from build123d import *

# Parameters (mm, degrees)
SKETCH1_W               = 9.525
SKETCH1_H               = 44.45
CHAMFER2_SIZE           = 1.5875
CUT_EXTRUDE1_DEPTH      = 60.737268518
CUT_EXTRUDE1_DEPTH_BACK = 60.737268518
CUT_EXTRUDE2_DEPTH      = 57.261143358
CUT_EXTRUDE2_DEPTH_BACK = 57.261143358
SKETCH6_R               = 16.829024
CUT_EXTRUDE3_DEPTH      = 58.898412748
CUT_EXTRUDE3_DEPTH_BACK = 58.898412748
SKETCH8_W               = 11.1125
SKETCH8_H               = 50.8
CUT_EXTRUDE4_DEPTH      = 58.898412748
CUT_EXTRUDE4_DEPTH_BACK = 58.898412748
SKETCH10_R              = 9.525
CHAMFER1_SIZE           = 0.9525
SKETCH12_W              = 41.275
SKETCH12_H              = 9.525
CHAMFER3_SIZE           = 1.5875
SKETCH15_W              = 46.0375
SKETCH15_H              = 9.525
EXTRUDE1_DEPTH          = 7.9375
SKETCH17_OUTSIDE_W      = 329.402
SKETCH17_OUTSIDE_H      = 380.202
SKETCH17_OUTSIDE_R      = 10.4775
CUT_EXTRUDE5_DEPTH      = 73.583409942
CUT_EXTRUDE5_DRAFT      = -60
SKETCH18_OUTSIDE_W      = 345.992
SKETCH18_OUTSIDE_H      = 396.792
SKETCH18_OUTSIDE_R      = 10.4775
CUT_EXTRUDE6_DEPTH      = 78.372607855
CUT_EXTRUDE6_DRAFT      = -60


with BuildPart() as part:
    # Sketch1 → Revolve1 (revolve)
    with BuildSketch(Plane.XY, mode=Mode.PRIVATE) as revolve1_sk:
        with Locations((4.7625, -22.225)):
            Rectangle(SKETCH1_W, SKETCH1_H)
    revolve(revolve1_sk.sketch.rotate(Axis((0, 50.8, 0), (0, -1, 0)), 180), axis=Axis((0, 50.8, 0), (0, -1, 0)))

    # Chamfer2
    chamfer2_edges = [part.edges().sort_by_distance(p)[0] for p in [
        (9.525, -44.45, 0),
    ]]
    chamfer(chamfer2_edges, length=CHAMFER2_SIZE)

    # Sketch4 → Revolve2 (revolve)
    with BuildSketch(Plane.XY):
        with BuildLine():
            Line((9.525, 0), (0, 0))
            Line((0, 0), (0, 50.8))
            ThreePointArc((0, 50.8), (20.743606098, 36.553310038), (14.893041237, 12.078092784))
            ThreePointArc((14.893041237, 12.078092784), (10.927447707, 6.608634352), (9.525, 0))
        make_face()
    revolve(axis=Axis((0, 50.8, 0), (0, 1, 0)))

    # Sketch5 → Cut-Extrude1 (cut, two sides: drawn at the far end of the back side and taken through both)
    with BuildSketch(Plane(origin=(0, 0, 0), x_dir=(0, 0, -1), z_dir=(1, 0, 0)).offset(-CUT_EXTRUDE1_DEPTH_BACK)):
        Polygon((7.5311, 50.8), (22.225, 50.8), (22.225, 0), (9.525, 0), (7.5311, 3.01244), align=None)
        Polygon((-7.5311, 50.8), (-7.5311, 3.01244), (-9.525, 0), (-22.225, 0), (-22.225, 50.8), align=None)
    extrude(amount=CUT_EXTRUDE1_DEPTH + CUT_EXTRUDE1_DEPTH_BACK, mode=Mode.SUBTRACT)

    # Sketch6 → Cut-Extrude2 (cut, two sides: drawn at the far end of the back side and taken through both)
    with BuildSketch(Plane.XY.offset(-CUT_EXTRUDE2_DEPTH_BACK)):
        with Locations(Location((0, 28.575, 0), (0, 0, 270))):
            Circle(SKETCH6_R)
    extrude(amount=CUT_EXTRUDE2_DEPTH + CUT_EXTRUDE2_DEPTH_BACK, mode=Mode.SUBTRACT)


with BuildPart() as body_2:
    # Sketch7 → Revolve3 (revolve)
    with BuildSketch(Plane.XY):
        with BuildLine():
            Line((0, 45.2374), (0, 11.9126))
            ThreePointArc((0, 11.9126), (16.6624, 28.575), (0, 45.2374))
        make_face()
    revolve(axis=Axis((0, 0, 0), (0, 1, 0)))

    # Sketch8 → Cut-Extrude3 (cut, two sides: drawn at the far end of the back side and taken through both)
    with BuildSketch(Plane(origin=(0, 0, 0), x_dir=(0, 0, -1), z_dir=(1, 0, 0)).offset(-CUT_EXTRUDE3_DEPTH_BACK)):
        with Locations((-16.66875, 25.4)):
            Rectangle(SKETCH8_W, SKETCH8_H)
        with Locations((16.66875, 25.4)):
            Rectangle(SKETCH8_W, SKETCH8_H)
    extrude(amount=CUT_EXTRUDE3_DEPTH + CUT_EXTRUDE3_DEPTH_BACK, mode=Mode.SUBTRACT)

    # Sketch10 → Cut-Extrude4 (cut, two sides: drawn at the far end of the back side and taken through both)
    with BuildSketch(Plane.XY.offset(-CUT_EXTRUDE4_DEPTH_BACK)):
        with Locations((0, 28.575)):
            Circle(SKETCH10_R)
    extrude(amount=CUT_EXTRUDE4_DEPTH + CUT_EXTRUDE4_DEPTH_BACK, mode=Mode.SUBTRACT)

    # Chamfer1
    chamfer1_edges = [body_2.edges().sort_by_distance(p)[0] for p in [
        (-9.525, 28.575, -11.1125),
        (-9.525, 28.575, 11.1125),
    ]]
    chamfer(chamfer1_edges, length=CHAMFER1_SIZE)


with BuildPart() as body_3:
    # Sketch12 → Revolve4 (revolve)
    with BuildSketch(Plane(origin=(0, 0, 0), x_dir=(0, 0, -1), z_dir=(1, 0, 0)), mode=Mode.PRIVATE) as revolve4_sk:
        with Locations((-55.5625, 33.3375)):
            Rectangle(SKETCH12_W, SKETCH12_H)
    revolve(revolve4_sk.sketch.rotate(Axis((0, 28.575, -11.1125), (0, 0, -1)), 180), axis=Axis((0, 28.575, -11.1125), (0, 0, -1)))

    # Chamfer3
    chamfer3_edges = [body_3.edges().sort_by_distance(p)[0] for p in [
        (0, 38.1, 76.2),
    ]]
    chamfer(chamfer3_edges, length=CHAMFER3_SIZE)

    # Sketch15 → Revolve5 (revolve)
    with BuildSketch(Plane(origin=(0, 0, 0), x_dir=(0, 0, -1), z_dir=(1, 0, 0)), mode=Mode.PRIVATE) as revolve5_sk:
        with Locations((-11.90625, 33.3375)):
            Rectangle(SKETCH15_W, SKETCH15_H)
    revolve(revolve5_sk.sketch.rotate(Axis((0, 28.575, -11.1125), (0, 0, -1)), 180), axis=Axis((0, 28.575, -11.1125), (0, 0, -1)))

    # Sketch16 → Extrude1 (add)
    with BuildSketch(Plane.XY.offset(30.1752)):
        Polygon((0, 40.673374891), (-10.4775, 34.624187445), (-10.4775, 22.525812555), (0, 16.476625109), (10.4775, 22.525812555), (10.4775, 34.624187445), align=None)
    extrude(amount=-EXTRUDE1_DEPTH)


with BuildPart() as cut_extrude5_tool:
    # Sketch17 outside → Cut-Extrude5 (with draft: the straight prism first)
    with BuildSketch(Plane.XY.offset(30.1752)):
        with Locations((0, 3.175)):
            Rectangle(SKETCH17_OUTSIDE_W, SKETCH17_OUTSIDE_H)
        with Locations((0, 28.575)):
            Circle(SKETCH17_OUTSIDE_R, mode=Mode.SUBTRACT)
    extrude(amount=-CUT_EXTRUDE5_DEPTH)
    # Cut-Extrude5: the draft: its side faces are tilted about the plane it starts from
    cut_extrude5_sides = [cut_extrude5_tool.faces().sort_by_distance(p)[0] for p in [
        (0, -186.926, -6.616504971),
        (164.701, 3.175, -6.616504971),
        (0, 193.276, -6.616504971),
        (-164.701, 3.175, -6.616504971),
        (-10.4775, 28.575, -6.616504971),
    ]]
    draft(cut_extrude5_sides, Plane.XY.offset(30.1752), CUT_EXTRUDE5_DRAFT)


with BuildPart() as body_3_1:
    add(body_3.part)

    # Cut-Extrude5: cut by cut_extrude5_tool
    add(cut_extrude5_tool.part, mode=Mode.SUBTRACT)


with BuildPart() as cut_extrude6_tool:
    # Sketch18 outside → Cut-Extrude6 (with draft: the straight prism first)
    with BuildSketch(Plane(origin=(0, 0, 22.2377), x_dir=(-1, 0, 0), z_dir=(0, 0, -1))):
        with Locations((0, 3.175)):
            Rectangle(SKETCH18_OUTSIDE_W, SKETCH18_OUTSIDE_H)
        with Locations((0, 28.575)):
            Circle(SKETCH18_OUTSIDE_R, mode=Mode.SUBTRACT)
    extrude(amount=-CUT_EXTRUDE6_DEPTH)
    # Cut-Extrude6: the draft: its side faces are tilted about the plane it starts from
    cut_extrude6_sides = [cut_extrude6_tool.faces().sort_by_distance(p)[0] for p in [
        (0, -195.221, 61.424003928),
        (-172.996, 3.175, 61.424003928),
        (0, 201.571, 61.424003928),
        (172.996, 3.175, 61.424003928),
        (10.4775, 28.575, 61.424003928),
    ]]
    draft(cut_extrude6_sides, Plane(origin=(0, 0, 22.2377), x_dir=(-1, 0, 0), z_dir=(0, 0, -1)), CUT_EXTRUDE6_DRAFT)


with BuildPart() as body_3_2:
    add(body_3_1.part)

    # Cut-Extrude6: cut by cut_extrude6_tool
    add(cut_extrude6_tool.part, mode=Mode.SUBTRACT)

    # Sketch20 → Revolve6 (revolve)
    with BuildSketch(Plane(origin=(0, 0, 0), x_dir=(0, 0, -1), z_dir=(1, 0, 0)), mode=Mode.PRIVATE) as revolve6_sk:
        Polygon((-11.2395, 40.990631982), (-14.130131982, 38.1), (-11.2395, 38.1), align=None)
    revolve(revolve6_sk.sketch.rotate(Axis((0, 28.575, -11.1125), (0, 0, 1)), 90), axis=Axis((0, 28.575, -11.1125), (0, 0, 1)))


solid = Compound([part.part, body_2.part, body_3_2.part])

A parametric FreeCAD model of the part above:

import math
import FreeCAD as App
import Part
import Sketcher

V = App.Vector
Q = App.Units.Quantity


def edges_at(feature, points):
    """Names of the edges that pass closest to the given points."""
    edges = feature.Shape.Edges
    near = lambda p: min(range(len(edges)), key=lambda i: edges[i].distToShape(Part.Vertex(*p))[0])
    return sorted({f"Edge{near(p) + 1}" for p in points})


def faces_at(feature, points):
    """Names of the faces that lie closest to the given points."""
    faces = feature.Shape.Faces
    near = lambda p: min(range(len(faces)), key=lambda i: faces[i].distToShape(Part.Vertex(*p))[0])
    return sorted({f"Face{near(p) + 1}" for p in points})


def add_polygon(sketch, points):
    """Adds a closed chain of lines whose ends are joined by coincident constraints."""
    first, n = sketch.GeometryCount, len(points)
    for a, b in zip(points, points[1:] + points[:1]):
        sketch.addGeometry(Part.LineSegment(App.Vector(*a, 0), App.Vector(*b, 0)), False)
    for i in range(n):
        sketch.addConstraint(Sketcher.Constraint("Coincident", first + i, 2, first + (i + 1) % n, 1))

doc = App.newDocument("Part")
body = doc.addObject("PartDesign::Body", "Body")

# Sketch on XY plane
sketch1 = doc.addObject("Sketcher::SketchObject", "Sketch")
body.addObject(sketch1)
sketch1.AttachmentSupport = (doc.XY_Plane, [""])
sketch1.MapMode = "FlatFace"
add_polygon(sketch1, [(0, 0), (0, -44), (10, -44), (10, 0)])  # lines 0-3
sketch1.addConstraint([
    Sketcher.Constraint("Vertical", 0),
    Sketcher.Constraint("Horizontal", 1),
    Sketcher.Constraint("Vertical", 2),
    Sketcher.Constraint("Horizontal", 3),
    Sketcher.Constraint("Coincident", 3, 2, -1, 1),
    Sketcher.Constraint("DistanceY", 0, 2, 0, 1, Q("1.75 in")),
    Sketcher.Constraint("DistanceX", 1, 1, 1, 2, Q("0.375 in")),
])
revolution = doc.addObject("PartDesign::Revolution", "Revolution")
body.addObject(revolution)
revolution.Profile = sketch1
revolution.ReferenceAxis = (sketch1, ["V_Axis"])
revolution.Angle = 360
doc.recompute()

chamfer = doc.addObject("PartDesign::Chamfer", "Chamfer")
body.addObject(chamfer)
chamfer.Base = (revolution, edges_at(revolution, [(9.525, -44.45, 0)]))
chamfer.Size = Q("0.0625 in")

# Sketch on XY plane
sketch2 = doc.addObject("Sketcher::SketchObject", "Sketch001")
body.addObject(sketch2)
sketch2.AttachmentSupport = (doc.XY_Plane, [""])
sketch2.MapMode = "FlatFace"
sketch2.addGeometry([
    Part.LineSegment(V(0, 0, 0), V(10, 0, 0)),
    Part.ArcOfCircle(Part.Circle(V(26, 0, 0), V(0, 0, 1), 16), math.radians(132), math.radians(180)),
    Part.ArcOfCircle(Part.Circle(V(0, 29, 0), V(0, 0, 1), 22), math.radians(-48), math.radians(90)),
    Part.LineSegment(V(0, 51, 0), V(0, 0, 0)),
], False)
sketch2.addConstraint([
    Sketcher.Constraint("Coincident", 0, 2, 1, 2),
    Sketcher.Constraint("Tangent", 1, 1, 2, 1),
    Sketcher.Constraint("Coincident", 2, 2, 3, 1),
    Sketcher.Constraint("Coincident", 3, 2, 0, 1),
    Sketcher.Constraint("Horizontal", 0),
    Sketcher.Constraint("Vertical", 3),
    Sketcher.Constraint("Coincident", 3, 2, -1, 1),
    Sketcher.Constraint("PointOnObject", 1, 3, -1),
    Sketcher.Constraint("PointOnObject", 2, 3, -2),
    Sketcher.Constraint("DistanceY", 3, 2, 3, 1, Q("2 in")),
    Sketcher.Constraint("Radius", 1, Q("0.640625 in")),
    Sketcher.Constraint("Radius", 2, Q("0.875 in")),
])
revolution2 = doc.addObject("PartDesign::Revolution", "Revolution001")
body.addObject(revolution2)
revolution2.Profile = sketch2
revolution2.ReferenceAxis = (sketch2, ["V_Axis"])
revolution2.Angle = 360

# Sketch on YZ plane
sketch3 = doc.addObject("Sketcher::SketchObject", "Sketch002")
body.addObject(sketch3)
sketch3.AttachmentSupport = (doc.YZ_Plane, [""])
sketch3.MapMode = "FlatFace"
add_polygon(sketch3, [(50.8, -22.2), (50.8, -7.5), (3, -7.5), (0, -9.5), (0, -22.2)])  # lines 0-4
add_polygon(sketch3, [(3, 7.5), (50.8, 7.5), (50.8, 22.2), (0, 22.2), (0, 9.5)])  # lines 5-9
sketch3.addConstraint([
    Sketcher.Constraint("Vertical", 0),
    Sketcher.Constraint("Horizontal", 1),
    Sketcher.Constraint("Vertical", 3),
    Sketcher.Constraint("Horizontal", 4),
    Sketcher.Constraint("Horizontal", 5),
    Sketcher.Constraint("Vertical", 6),
    Sketcher.Constraint("Horizontal", 7),
    Sketcher.Constraint("Vertical", 8),
    Sketcher.Constraint("Symmetric", 3, 2, 7, 2, -1, 1),
    Sketcher.Constraint("Symmetric", 0, 2, 5, 2, -1),
    Sketcher.Constraint("Symmetric", 2, 2, 8, 2, -1),
    Sketcher.Constraint("Vertical", 1, 2, 9, 2),
    Sketcher.Constraint("DistanceX", 4, 1, 4, 2, Q("2 in")),
    Sketcher.Constraint("DistanceY", 3, 2, 3, 1, Q("0.5 in")),
    Sketcher.Constraint("DistanceY", 4, 2, 6, 2, Q("1.75 in")),
    Sketcher.Constraint("DistanceX", 1, 2, 1, 1, Q("1.8814 in")),
    Sketcher.Constraint("DistanceY", 0, 1, 0, 2, Q("0.5785 in")),
])
pocket1 = doc.addObject("PartDesign::Pocket", "Pocket")
body.addObject(pocket1)
pocket1.Profile = sketch3
pocket1.Type = "ThroughAll"
pocket1.Midplane = True

# Sketch on XY plane
sketch4 = doc.addObject("Sketcher::SketchObject", "Sketch003")
body.addObject(sketch4)
sketch4.AttachmentSupport = (doc.XY_Plane, [""])
sketch4.MapMode = "FlatFace"
sketch4.addGeometry(Part.Circle(V(0, 29, 0), V(0, 0, 1), 17), False)
sketch4.addConstraint([
    Sketcher.Constraint("PointOnObject", 0, 3, -2),
    Sketcher.Constraint("DistanceY", -1, 1, 0, 3, Q("1.125 in")),
    Sketcher.Constraint("Diameter", 0, Q("33.658048 mm")),
])
pocket2 = doc.addObject("PartDesign::Pocket", "Pocket001")
body.addObject(pocket2)
pocket2.Profile = sketch4
pocket2.Type = "ThroughAll"
pocket2.Midplane = True
body2 = doc.addObject("PartDesign::Body", "Body001")

# Sketch on XY plane
sketch5 = doc.addObject("Sketcher::SketchObject", "Sketch004")
body2.addObject(sketch5)
sketch5.AttachmentSupport = (doc.getObject("XY_Plane001"), [""])
sketch5.MapMode = "FlatFace"
sketch5.addGeometry([
    Part.LineSegment(V(0, 45, 0), V(0, 12, 0)),
    Part.ArcOfCircle(Part.Circle(V(0, 29, 0), V(0, 0, 1), 17), math.radians(-90), math.radians(90)),
], False)
sketch5.addConstraint([
    Sketcher.Constraint("Coincident", 0, 1, 1, 2),
    Sketcher.Constraint("Coincident", 1, 1, 0, 2),
    Sketcher.Constraint("Vertical", 0),
    Sketcher.Constraint("PointOnObject", 1, 3, -2),
    Sketcher.Constraint("PointOnObject", 0, 1, -2),
    Sketcher.Constraint("Radius", 1, Q("0.656 in")),
    Sketcher.Constraint("DistanceY", -1, 1, 1, 3, Q("1.125 in")),
])
revolution3 = doc.addObject("PartDesign::Revolution", "Revolution002")
body2.addObject(revolution3)
revolution3.Profile = sketch5
revolution3.ReferenceAxis = (sketch5, ["V_Axis"])
revolution3.Angle = 360

# Sketch on YZ plane
sketch6 = doc.addObject("Sketcher::SketchObject", "Sketch005")
body2.addObject(sketch6)
sketch6.AttachmentSupport = (doc.getObject("YZ_Plane001"), [""])
sketch6.MapMode = "FlatFace"
add_polygon(sketch6, [(51, 22), (0, 22), (0, 11), (51, 11)])  # lines 0-3
add_polygon(sketch6, [(51, -11), (0, -11), (0, -22), (51, -22)])  # lines 4-7
sketch6.addConstraint([
    Sketcher.Constraint("Horizontal", 0),
    Sketcher.Constraint("Vertical", 1),
    Sketcher.Constraint("Horizontal", 2),
    Sketcher.Constraint("Vertical", 3),
    Sketcher.Constraint("Horizontal", 4),
    Sketcher.Constraint("Vertical", 5),
    Sketcher.Constraint("Horizontal", 6),
    Sketcher.Constraint("Vertical", 7),
    Sketcher.Constraint("Symmetric", 1, 2, 4, 2, -1, 1),
    Sketcher.Constraint("Symmetric", 0, 2, 5, 2, -1),
    Sketcher.Constraint("Vertical", 3, 2, 6, 2),
    Sketcher.Constraint("DistanceX", 0, 2, 0, 1, Q("2 in")),
    Sketcher.Constraint("DistanceY", 1, 2, 1, 1, Q("0.4375 in")),
    Sketcher.Constraint("DistanceY", 5, 2, 0, 2, Q("1.75 in")),
])
pocket3 = doc.addObject("PartDesign::Pocket", "Pocket002")
body2.addObject(pocket3)
pocket3.Profile = sketch6
pocket3.Type = "ThroughAll"
pocket3.Midplane = True

# Sketch on XY plane
sketch7 = doc.addObject("Sketcher::SketchObject", "Sketch006")
body2.addObject(sketch7)
sketch7.AttachmentSupport = (doc.getObject("XY_Plane001"), [""])
sketch7.MapMode = "FlatFace"
sketch7.addGeometry(Part.Circle(V(0, 29, 0), V(0, 0, 1), 10), False)
sketch7.addConstraint([
    Sketcher.Constraint("PointOnObject", 0, 3, -2),
    Sketcher.Constraint("Diameter", 0, Q("0.75 in")),
    Sketcher.Constraint("DistanceY", -1, 1, 0, 3, Q("1.125 in")),
])
pocket4 = doc.addObject("PartDesign::Pocket", "Pocket003")
body2.addObject(pocket4)
pocket4.Profile = sketch7
pocket4.Type = "ThroughAll"
pocket4.Midplane = True
doc.recompute()

chamfer2 = doc.addObject("PartDesign::Chamfer", "Chamfer001")
body2.addObject(chamfer2)
chamfer2.Base = (pocket4, edges_at(pocket4, [(-9.525, 28.575, -11.113), (-9.525, 28.575, 11.113)]))
chamfer2.Size = Q("0.0375 in")
body3 = doc.addObject("PartDesign::Body", "Body002")

# Sketch on YZ plane
sketch8 = doc.addObject("Sketcher::SketchObject", "Sketch007")
body3.addObject(sketch8)
sketch8.AttachmentSupport = (doc.getObject("YZ_Plane002"), [""])
sketch8.MapMode = "FlatFace"
add_polygon(sketch8, [(38, 76), (29, 76), (29, 35), (38, 35)])  # lines 0-3
sketch8.addGeometry(Part.LineSegment(V(29, 76, 0), V(29, 35, 0)), True)  # axis
sketch8.addConstraint([
    Sketcher.Constraint("Horizontal", 0),
    Sketcher.Constraint("Vertical", 1),
    Sketcher.Constraint("Horizontal", 2),
    Sketcher.Constraint("Vertical", 3),
    Sketcher.Constraint("Vertical", 4),
    Sketcher.Constraint("Coincident", 4, 1, 0, 2),
    Sketcher.Constraint("Horizontal", 2, 2, 4, 2),
    Sketcher.Constraint("DistanceY", -1, 1, 0, 2, Q("3 in")),
    Sketcher.Constraint("DistanceX", -1, 1, 2, 2, Q("1.5 in")),
    Sketcher.Constraint("DistanceX", 0, 2, 0, 1, Q("0.375 in")),
    Sketcher.Constraint("DistanceY", 1, 2, 1, 1, Q("1.625 in")),
])
revolution4 = doc.addObject("PartDesign::Revolution", "Revolution003")
body3.addObject(revolution4)
revolution4.Profile = sketch8
revolution4.ReferenceAxis = (sketch8, ["Axis0"])
revolution4.Angle = 360
doc.recompute()

chamfer3 = doc.addObject("PartDesign::Chamfer", "Chamfer002")
body3.addObject(chamfer3)
chamfer3.Base = (revolution4, edges_at(revolution4, [(0, 38.1, 76.2)]))
chamfer3.Size = Q("0.0625 in")

# Sketch on YZ plane
sketch9 = doc.addObject("Sketcher::SketchObject", "Sketch008")
body3.addObject(sketch9)
sketch9.AttachmentSupport = (doc.getObject("YZ_Plane002"), [""])
sketch9.MapMode = "FlatFace"
add_polygon(sketch9, [(38, 35), (29, 35), (29, -11), (38, -11)])  # lines 0-3
sketch9.addGeometry(Part.LineSegment(V(29, 35, 0), V(29, -11, 0)), True)  # axis
sketch9.addConstraint([
    Sketcher.Constraint("Horizontal", 0),
    Sketcher.Constraint("Vertical", 1),
    Sketcher.Constraint("Horizontal", 2),
    Sketcher.Constraint("Vertical", 3),
    Sketcher.Constraint("Vertical", 4),
    Sketcher.Constraint("Coincident", 4, 1, 0, 2),
    Sketcher.Constraint("Horizontal", 2, 2, 4, 2),
    Sketcher.Constraint("DistanceX", -1, 1, 2, 2, Q("1.5 in")),
    Sketcher.Constraint("DistanceX", 0, 2, 0, 1, Q("0.375 in")),
    Sketcher.Constraint("DistanceY", 1, 2, 1, 1, Q("1.8125 in")),
    Sketcher.Constraint("DistanceY", -1, 1, 0, 2, Q("1.375 in")),
])
revolution5 = doc.addObject("PartDesign::Revolution", "Revolution004")
body3.addObject(revolution5)
revolution5.Profile = sketch9
revolution5.ReferenceAxis = (sketch9, ["Axis0"])
revolution5.Angle = 360

# Sketch on XY plane
sketch10 = doc.addObject("Sketcher::SketchObject", "Sketch009")
body3.addObject(sketch10)
sketch10.AttachmentSupport = (doc.getObject("XY_Plane002"), [""])
sketch10.MapMode = "FlatFace"
sketch10.AttachmentOffset = App.Placement(V(0, 0, 1.188 * 25.4), App.Rotation())
add_polygon(sketch10, [(0, 41), (-10, 35), (-10, 23), (0, 16), (10, 23), (10, 35)])  # lines 0-5
sketch10.addConstraint([
    Sketcher.Constraint("Vertical", 1),
    Sketcher.Constraint("Vertical", 4),
    Sketcher.Constraint("Symmetric", 1, 2, 3, 2, -2),
    Sketcher.Constraint("PointOnObject", 2, 2, -2),
    Sketcher.Constraint("PointOnObject", 5, 2, -2),
    Sketcher.Constraint("Parallel", 0, 3),
    Sketcher.Constraint("Parallel", 2, 5),
    Sketcher.Constraint("Angle", 0, Q("-150 deg")),
    Sketcher.Constraint("DistanceX", 1, 2, 3, 2, Q("0.825 in")),
    Sketcher.Constraint("DistanceY", 1, 2, 1, 1, Q("12.098375 mm")),
    Sketcher.Constraint("DistanceY", -1, 1, 0, 2, Q("34.624187 mm")),
])
pad1 = doc.addObject("PartDesign::Pad", "Pad")
body3.addObject(pad1)
pad1.Profile = sketch10
pad1.Length = Q("0.3125 in")
pad1.Reversed = True
body4 = doc.addObject("PartDesign::Body", "Body003")

# Sketch on XY plane
sketch11 = doc.addObject("Sketcher::SketchObject", "Sketch010")
body4.addObject(sketch11)
sketch11.AttachmentSupport = (doc.getObject("XY_Plane003"), [""])
sketch11.MapMode = "FlatFace"
sketch11.AttachmentOffset = App.Placement(V(0, 0, 1.188 * 25.4), App.Rotation())
add_polygon(sketch11, [(-165, 193), (-165, -187), (165, -187), (165, 193)])  # lines 0-3
sketch11.addGeometry(Part.Circle(V(0, 29, 0), V(0, 0, 1), 10), False)  # 4
sketch11.addConstraint([
    Sketcher.Constraint("Vertical", 0),
    Sketcher.Constraint("Horizontal", 1),
    Sketcher.Constraint("Vertical", 2),
    Sketcher.Constraint("Horizontal", 3),
    Sketcher.Constraint("PointOnObject", 4, 3, -2),
    Sketcher.Constraint("Diameter", 4, Q("0.825 in")),
    Sketcher.Constraint("DistanceY", -1, 1, 4, 3, Q("1.125 in")),
    Sketcher.Constraint("DistanceX", 1, 1, 1, 2, Q("329.402 mm")),
    Sketcher.Constraint("DistanceY", 0, 2, 0, 1, Q("380.202 mm")),
    Sketcher.Constraint("DistanceX", 0, 2, -1, 1, Q("164.701 mm")),
    Sketcher.Constraint("DistanceY", 0, 2, -1, 1, Q("186.926 mm")),
])
pad2 = doc.addObject("PartDesign::Pad", "Pad001")
body4.addObject(pad2)
pad2.Profile = sketch11
pad2.Length = 73.58341
pad2.Reversed = True
doc.recompute()

datumplane = doc.addObject("PartDesign::Plane", "DatumPlane")
body4.addObject(datumplane)
datumplane.AttachmentSupport = (doc.getObject("XY_Plane003"), [""])
datumplane.MapMode = "FlatFace"
datumplane.AttachmentOffset = App.Placement(V(0, 0, 1.188 * 25.4), App.Rotation())
draft = doc.addObject("PartDesign::Draft", "Draft")
body4.addObject(draft)
draft.Base = (pad2, faces_at(pad2, [
    (0, -186.926, -6.617),
    (164.701, 3.175, -6.617),
    (0, 193.276, -6.617),
    (-164.701, 3.175, -6.617),
    (-10.477, 28.575, -6.617),
]))
draft.NeutralPlane = (datumplane, [""])
draft.Angle = 60
draft.Reversed = True
doc.recompute()

boolean = doc.addObject("PartDesign::Boolean", "Boolean")
body3.addObject(boolean)
boolean.Type = "Cut"
boolean.addObjects([body4])
body5 = doc.addObject("PartDesign::Body", "Body004")

# Sketch on XY plane
sketch12 = doc.addObject("Sketcher::SketchObject", "Sketch011")
body5.addObject(sketch12)
sketch12.AttachmentSupport = (doc.getObject("XY_Plane004"), [""])
sketch12.MapMode = "FlatFace"
sketch12.AttachmentOffset = App.Placement(V(0, 0, 0.8755 * 25.4), App.Rotation())
add_polygon(sketch12, [(173, 202), (173, -195), (-173, -195), (-173, 202)])  # lines 0-3
sketch12.addGeometry(Part.Circle(V(0, 29, 0), V(0, 0, 1), 10), False)  # 4
sketch12.addConstraint([
    Sketcher.Constraint("Vertical", 0),
    Sketcher.Constraint("Horizontal", 1),
    Sketcher.Constraint("Vertical", 2),
    Sketcher.Constraint("Horizontal", 3),
    Sketcher.Constraint("PointOnObject", 4, 3, -2),
    Sketcher.Constraint("Diameter", 4, Q("0.825 in")),
    Sketcher.Constraint("DistanceY", -1, 1, 4, 3, Q("1.125 in")),
    Sketcher.Constraint("DistanceX", 1, 2, 1, 1, Q("345.992 mm")),
    Sketcher.Constraint("DistanceY", 0, 2, 0, 1, Q("396.792 mm")),
    Sketcher.Constraint("DistanceX", -1, 1, 0, 2, Q("172.996 mm")),
    Sketcher.Constraint("DistanceY", 0, 2, -1, 1, Q("195.221 mm")),
])
pad3 = doc.addObject("PartDesign::Pad", "Pad002")
body5.addObject(pad3)
pad3.Profile = sketch12
pad3.Length = 78.372608
doc.recompute()

datumplane2 = doc.addObject("PartDesign::Plane", "DatumPlane001")
body5.addObject(datumplane2)
datumplane2.AttachmentSupport = (doc.getObject("XY_Plane004"), [""])
datumplane2.MapMode = "FlatFace"
datumplane2.AttachmentOffset = App.Placement(V(0, 0, 0.8755 * 25.4), App.Rotation())
draft2 = doc.addObject("PartDesign::Draft", "Draft001")
body5.addObject(draft2)
draft2.Base = (pad3, faces_at(pad3, [
    (0, -195.221, 61.424),
    (-172.996, 3.175, 61.424),
    (0, 201.571, 61.424),
    (172.996, 3.175, 61.424),
    (10.477, 28.575, 61.424),
]))
draft2.NeutralPlane = (datumplane2, [""])
draft2.Angle = 60
draft2.Reversed = False
doc.recompute()

boolean2 = doc.addObject("PartDesign::Boolean", "Boolean001")
body3.addObject(boolean2)
boolean2.Type = "Cut"
boolean2.addObjects([body5])

# Sketch on YZ plane
sketch13 = doc.addObject("Sketcher::SketchObject", "Sketch012")
body3.addObject(sketch13)
sketch13.AttachmentSupport = (doc.getObject("YZ_Plane002"), [""])
sketch13.MapMode = "FlatFace"
add_polygon(sketch13, [(41, 11.2), (38.1, 14.1), (38.1, 11.2)])  # lines 0-2
sketch13.addGeometry(Part.LineSegment(V(28.6, 11.2, 0), V(28.6, 14.1, 0)), True)  # axis
sketch13.addConstraint([
    Sketcher.Constraint("Vertical", 1),
    Sketcher.Constraint("Horizontal", 2),
    Sketcher.Constraint("Vertical", 3),
    Sketcher.Constraint("Horizontal", 2, 2, 3, 1),
    Sketcher.Constraint("Horizontal", 0, 2, 3, 2),
    Sketcher.Constraint("Equal", 2, 1),
    Sketcher.Constraint("DistanceX", -1, 1, 0, 2, Q("1.5 in")),
    Sketcher.Constraint("DistanceX", -1, 1, 3, 1, Q("1.125 in")),
    Sketcher.Constraint("DistanceY", -1, 1, 1, 2, Q("0.4425 in")),
    Sketcher.Constraint("DistanceX", 2, 1, 2, 2, Q("2.890632 mm")),
])
revolution6 = doc.addObject("PartDesign::Revolution", "Revolution005")
body3.addObject(revolution6)
revolution6.Profile = sketch13
revolution6.ReferenceAxis = (sketch13, ["Axis0"])
revolution6.Angle = 360

doc.recompute()
